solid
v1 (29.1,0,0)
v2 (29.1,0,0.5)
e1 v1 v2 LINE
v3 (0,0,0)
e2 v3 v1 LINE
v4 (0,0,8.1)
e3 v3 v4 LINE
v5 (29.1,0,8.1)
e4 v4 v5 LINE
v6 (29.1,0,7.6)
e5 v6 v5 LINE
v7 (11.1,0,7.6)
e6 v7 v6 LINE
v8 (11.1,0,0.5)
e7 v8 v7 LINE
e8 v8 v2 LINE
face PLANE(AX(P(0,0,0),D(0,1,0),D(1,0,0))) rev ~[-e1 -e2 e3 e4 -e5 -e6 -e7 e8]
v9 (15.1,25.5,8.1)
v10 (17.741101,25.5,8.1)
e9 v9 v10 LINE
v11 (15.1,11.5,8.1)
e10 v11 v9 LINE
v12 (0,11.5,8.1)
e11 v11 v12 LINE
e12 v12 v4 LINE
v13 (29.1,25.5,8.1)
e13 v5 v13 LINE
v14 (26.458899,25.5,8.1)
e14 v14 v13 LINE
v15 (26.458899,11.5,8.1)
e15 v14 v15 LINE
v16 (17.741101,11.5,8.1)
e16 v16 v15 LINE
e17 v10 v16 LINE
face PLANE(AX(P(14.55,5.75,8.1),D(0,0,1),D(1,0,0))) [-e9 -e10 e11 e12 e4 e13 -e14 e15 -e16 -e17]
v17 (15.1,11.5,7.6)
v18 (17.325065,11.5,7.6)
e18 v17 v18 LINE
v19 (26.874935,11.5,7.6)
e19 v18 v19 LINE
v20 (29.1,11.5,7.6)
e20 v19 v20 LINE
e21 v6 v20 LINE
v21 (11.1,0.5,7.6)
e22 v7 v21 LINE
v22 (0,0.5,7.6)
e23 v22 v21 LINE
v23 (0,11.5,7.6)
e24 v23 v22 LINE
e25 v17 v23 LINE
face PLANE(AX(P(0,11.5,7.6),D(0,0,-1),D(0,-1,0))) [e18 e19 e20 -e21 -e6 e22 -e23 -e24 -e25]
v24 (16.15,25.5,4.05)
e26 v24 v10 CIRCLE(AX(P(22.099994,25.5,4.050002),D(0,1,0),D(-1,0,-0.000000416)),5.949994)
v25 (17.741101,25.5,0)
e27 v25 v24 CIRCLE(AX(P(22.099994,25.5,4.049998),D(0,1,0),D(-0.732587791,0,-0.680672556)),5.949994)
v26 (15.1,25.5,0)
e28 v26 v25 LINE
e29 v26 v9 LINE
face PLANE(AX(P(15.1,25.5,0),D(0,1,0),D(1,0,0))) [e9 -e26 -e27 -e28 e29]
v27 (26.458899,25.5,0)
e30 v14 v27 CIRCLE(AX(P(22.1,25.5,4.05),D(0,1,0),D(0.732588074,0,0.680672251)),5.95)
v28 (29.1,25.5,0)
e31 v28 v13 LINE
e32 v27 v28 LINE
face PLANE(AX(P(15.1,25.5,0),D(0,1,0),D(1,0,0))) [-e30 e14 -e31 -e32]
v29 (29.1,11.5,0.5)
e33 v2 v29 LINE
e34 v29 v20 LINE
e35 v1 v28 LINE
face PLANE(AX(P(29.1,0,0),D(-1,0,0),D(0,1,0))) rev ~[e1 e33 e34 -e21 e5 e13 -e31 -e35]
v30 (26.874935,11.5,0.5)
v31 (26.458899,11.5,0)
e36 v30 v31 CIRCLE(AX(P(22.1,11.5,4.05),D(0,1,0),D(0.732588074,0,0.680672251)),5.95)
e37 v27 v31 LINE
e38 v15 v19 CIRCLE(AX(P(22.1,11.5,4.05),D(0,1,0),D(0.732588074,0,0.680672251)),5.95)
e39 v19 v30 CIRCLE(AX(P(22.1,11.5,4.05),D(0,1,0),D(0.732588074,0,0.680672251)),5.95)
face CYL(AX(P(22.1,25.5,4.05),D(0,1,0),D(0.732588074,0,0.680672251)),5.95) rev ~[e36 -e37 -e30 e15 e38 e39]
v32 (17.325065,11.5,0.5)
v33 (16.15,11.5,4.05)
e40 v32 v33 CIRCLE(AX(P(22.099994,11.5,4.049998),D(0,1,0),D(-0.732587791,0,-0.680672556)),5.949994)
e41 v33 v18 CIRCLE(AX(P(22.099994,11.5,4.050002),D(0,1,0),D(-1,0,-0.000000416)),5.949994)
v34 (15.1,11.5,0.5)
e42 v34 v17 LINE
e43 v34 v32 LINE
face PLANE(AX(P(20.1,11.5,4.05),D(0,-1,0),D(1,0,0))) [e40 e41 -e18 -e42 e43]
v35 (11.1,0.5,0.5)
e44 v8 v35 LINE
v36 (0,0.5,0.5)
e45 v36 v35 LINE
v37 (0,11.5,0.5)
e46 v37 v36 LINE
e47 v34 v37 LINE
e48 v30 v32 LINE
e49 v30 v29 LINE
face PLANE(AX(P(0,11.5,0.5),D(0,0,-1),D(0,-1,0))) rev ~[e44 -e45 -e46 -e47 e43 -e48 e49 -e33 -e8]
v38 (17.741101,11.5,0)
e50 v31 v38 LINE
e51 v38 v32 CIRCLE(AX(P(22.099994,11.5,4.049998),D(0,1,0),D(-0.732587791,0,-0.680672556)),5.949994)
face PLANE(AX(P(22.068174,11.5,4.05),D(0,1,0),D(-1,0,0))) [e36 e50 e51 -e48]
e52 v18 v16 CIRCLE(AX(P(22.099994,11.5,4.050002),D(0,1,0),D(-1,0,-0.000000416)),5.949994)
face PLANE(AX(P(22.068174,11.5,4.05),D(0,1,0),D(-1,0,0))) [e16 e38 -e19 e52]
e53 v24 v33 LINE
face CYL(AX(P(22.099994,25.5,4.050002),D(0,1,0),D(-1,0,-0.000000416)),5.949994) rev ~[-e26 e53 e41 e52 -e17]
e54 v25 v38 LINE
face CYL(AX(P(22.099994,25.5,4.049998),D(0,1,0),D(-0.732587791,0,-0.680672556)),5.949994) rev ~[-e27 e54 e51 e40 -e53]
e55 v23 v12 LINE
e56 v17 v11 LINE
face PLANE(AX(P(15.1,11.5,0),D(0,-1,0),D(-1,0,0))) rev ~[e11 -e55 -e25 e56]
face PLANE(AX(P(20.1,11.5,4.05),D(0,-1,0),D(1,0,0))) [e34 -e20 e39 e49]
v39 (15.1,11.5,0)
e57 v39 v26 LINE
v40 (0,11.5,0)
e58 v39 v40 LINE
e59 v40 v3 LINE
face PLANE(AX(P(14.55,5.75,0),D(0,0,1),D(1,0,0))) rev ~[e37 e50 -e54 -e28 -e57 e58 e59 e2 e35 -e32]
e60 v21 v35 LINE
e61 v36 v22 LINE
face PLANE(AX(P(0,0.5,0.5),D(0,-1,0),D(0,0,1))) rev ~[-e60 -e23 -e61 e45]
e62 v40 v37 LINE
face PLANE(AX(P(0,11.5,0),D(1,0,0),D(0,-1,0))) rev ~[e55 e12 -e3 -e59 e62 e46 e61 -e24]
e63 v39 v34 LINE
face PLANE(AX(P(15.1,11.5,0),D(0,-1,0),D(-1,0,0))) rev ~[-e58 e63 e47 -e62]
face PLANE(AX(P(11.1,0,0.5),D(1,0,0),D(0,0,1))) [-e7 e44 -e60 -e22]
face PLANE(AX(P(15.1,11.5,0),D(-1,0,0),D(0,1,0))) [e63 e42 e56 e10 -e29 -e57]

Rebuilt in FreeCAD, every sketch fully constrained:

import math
import FreeCAD as App
import Part
import Sketcher


def add_polygon(sketch, points):
    """Adds a closed chain of lines whose ends are joined by coincident constraints."""
    first, n = sketch.GeometryCount, len(points)
    for a, b in zip(points, points[1:] + points[:1]):
        sketch.addGeometry(Part.LineSegment(App.Vector(*a, 0), App.Vector(*b, 0)), False)
    for i in range(n):
        sketch.addConstraint(Sketcher.Constraint("Coincident", first + i, 2, first + (i + 1) % n, 1))

doc = App.newDocument("Part")
body = doc.addObject("PartDesign::Body", "Body")

# Sketch on XY plane
sketch1 = doc.addObject("Sketcher::SketchObject", "Sketch")
body.addObject(sketch1)
sketch1.AttachmentSupport = (doc.XY_Plane, [""])
sketch1.MapMode = "FlatFace"
add_polygon(sketch1, [(0, 12), (0, 0), (29, 0), (29, 26), (15, 26), (15, 12)])  # lines 0-5
sketch1.addConstraint([
    Sketcher.Constraint("Vertical", 0),
    Sketcher.Constraint("Horizontal", 1),
    Sketcher.Constraint("Vertical", 2),
    Sketcher.Constraint("Horizontal", 3),
    Sketcher.Constraint("Vertical", 4),
    Sketcher.Constraint("Horizontal", 5),
    Sketcher.Constraint("Coincident", 0, 2, -1, 1),
    Sketcher.Constraint("Equal", 3, 4),
    Sketcher.Constraint("DistanceX", 3, 2, 3, 1, 14.0),
    Sketcher.Constraint("DistanceX", 1, 1, 1, 2, 29.1),
    Sketcher.Constraint("DistanceY", 0, 2, 0, 1, 11.5),
])
pad1 = doc.addObject("PartDesign::Pad", "Pad")
body.addObject(pad1)
pad1.Profile = sketch1
pad1.Length = 8.1

# Sketch on XZ plane
sketch2 = doc.addObject("Sketcher::SketchObject", "Sketch001")
body.addObject(sketch2)
sketch2.AttachmentSupport = (doc.XZ_Plane, [""])
sketch2.MapMode = "FlatFace"
add_polygon(sketch2, [(11, 8), (11, 0), (29, 0), (29, 8)])  # lines 0-3
sketch2.addConstraint([
    Sketcher.Constraint("Vertical", 0),
    Sketcher.Constraint("Horizontal", 1),
    Sketcher.Constraint("Vertical", 2),
    Sketcher.Constraint("Horizontal", 3),
    Sketcher.Constraint("DistanceX", 1, 1, 1, 2, 18.0),
    Sketcher.Constraint("DistanceY", 0, 2, 0, 1, 7.1),
    Sketcher.Constraint("DistanceX", -1, 1, 0, 2, 11.1),
    Sketcher.Constraint("DistanceY", -1, 1, 0, 2, 0.5),
])
pocket1 = doc.addObject("PartDesign::Pocket", "Pocket")
body.addObject(pocket1)
pocket1.Profile = sketch2
pocket1.Length = 11.5

# Sketch on XZ plane
sketch3 = doc.addObject("Sketcher::SketchObject", "Sketch002")
body.addObject(sketch3)
sketch3.AttachmentSupport = (doc.XZ_Plane, [""])
sketch3.MapMode = "FlatFace"
sketch3.AttachmentOffset = App.Placement(App.Vector(0, 0, -25.5), App.Rotation())
sketch3.addGeometry([
    Part.ArcOfCircle(Part.Circle(App.Vector(22.1, 4, 0), App.Vector(0, 0, 1), 5.9), math.radians(180), math.radians(223)),  # 0
    Part.ArcOfCircle(Part.Circle(App.Vector(22.1, 4.1, 0), App.Vector(0, 0, 1), 5.9), math.radians(137), math.radians(180)),  # 1
    Part.LineSegment(App.Vector(17.7, 8.1, 0), App.Vector(26.5, 8.1, 0)),  # 2
    Part.ArcOfCircle(Part.Circle(App.Vector(22.1, 4, 0), App.Vector(0, 0, 1), 6), math.radians(-43), math.radians(43)),  # 3
    Part.LineSegment(App.Vector(26.5, 0, 0), App.Vector(17.7, 0, 0)),  # 4
], False)
sketch3.addConstraint([
    Sketcher.Constraint("Tangent", 0, 1, 1, 2),
    Sketcher.Constraint("Coincident", 1, 1, 2, 1),
    Sketcher.Constraint("Coincident", 2, 2, 3, 2),
    Sketcher.Constraint("Coincident", 3, 1, 4, 1),
    Sketcher.Constraint("Coincident", 4, 2, 0, 2),
    Sketcher.Constraint("Horizontal", 2),
    Sketcher.Constraint("Horizontal", 4),
    Sketcher.Constraint("Coincident", 3, 3, 0, 3),
    Sketcher.Constraint("Equal", 0, 1),
    Sketcher.Constraint("PointOnObject", 3, 1, -1),
    Sketcher.Constraint("Horizontal", 3, 3, 0, 1),
    Sketcher.Constraint("Vertical", 2, 2, 3, 1),
    Sketcher.Constraint("Radius", 3, 5.95),
    Sketcher.Constraint("DistanceX", -1, 1, 3, 3, 22.1),
    Sketcher.Constraint("DistanceY", -1, 1, 1, 1, 8.1),
    Sketcher.Constraint("DistanceX", -1, 1, 0, 1, 16.15),
])
pocket2 = doc.addObject("PartDesign::Pocket", "Pocket001")
body.addObject(pocket2)
pocket2.Profile = sketch3
pocket2.Length = 14
pocket2.Reversed = True

# Sketch on YZ plane
sketch4 = doc.addObject("Sketcher::SketchObject", "Sketch003")
body.addObject(sketch4)
sketch4.AttachmentSupport = (doc.YZ_Plane, [""])
sketch4.MapMode = "FlatFace"
add_polygon(sketch4, [(12, 8), (12, 0), (0, 0), (0, 8)])  # lines 0-3
sketch4.addConstraint([
    Sketcher.Constraint("Vertical", 0),
    Sketcher.Constraint("Horizontal", 1),
    Sketcher.Constraint("Vertical", 2),
    Sketcher.Constraint("Horizontal", 3),
    Sketcher.Constraint("DistanceX", 1, 2, 1, 1, 11.0),
    Sketcher.Constraint("DistanceY", 0, 2, 0, 1, 7.1),
    Sketcher.Constraint("DistanceX", -1, 1, 0, 2, 11.5),
    Sketcher.Constraint("DistanceY", -1, 1, 0, 2, 0.5),
])
pocket3 = doc.addObject("PartDesign::Pocket", "Pocket002")
body.addObject(pocket3)
pocket3.Profile = sketch4
pocket3.Length = 25
pocket3.Reversed = True

doc.recompute()
